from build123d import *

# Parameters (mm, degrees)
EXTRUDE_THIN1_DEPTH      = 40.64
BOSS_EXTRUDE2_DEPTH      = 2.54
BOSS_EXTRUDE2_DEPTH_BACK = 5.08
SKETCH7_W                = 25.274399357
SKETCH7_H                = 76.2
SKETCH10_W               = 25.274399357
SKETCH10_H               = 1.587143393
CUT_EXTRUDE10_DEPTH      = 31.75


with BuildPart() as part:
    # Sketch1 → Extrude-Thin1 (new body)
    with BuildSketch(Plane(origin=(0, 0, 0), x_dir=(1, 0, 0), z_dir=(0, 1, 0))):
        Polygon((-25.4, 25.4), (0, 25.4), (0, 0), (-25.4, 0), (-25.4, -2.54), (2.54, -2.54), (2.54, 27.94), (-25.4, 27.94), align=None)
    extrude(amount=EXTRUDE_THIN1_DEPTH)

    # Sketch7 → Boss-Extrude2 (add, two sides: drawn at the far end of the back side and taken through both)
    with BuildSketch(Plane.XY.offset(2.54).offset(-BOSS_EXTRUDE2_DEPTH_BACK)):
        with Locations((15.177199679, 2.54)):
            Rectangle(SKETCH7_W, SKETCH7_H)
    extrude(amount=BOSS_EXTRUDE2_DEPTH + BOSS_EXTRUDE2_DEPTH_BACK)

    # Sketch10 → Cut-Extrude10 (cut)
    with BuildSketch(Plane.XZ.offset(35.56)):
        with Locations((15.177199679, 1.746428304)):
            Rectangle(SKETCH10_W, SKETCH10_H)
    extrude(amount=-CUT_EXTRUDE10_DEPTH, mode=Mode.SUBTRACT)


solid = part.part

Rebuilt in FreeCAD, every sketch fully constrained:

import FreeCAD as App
import Part
import Sketcher

V = App.Vector
Q = App.Units.Quantity


def add_polygon(sketch, points):
    """Adds a closed chain of lines whose ends are joined by coincident constraints."""
    first, n = sketch.GeometryCount, len(points)
    for a, b in zip(points, points[1:] + points[:1]):
        sketch.addGeometry(Part.LineSegment(App.Vector(*a, 0), App.Vector(*b, 0)), False)
    for i in range(n):
        sketch.addConstraint(Sketcher.Constraint("Coincident", first + i, 2, first + (i + 1) % n, 1))

doc = App.newDocument("Part")
body = doc.addObject("PartDesign::Body", "Body")

sketch1 = body.newObject("Sketcher::SketchObject", "Sketch")
sketch1.AttachmentSupport = (doc.getObject("XZ_Plane"), [""])
sketch1.MapMode = "FlatFace"
add_polygon(sketch1, [(-25.4, -25.4), (0, -25.4), (0, 0), (-25.4, 0), (-25.4, 2.5), (2.5, 2.5), (2.5, -27.9), (-25.4, -27.9)])
sketch1.addConstraint([
    Sketcher.Constraint("Horizontal", 0),
    Sketcher.Constraint("Vertical", 1),
    Sketcher.Constraint("Horizontal", 2),
    Sketcher.Constraint("Vertical", 3),
    Sketcher.Constraint("Horizontal", 4),
    Sketcher.Constraint("Vertical", 5),
    Sketcher.Constraint("Horizontal", 6),
    Sketcher.Constraint("Vertical", 7),
    Sketcher.Constraint("Coincident", 1, 2, -1, 1),
    Sketcher.Constraint("Vertical", 3, 2, 6, 2),
    Sketcher.Constraint("Equal", 2, 1),
    Sketcher.Constraint("Equal", 3, 7),
    Sketcher.Constraint("DistanceX", 0, 1, 0, 2, Q("1 in")),
    Sketcher.Constraint("DistanceX", 4, 1, 4, 2, Q("1.1 in")),
    Sketcher.Constraint("DistanceY", 3, 1, 3, 2, Q("0.1 in")),
])
pad1 = body.newObject("PartDesign::Pad", "Pad")
pad1.Profile = sketch1
pad1.Length = Q("1.6 in")
pad1.Reversed = True

sketch2 = body.newObject("Sketcher::SketchObject", "Sketch001")
sketch2.AttachmentSupport = (doc.getObject("XY_Plane"), [""])
sketch2.MapMode = "FlatFace"
sketch2.AttachmentOffset = App.Placement(V(0, 0, 0.1 * 25.4), App.Rotation())
add_polygon(sketch2, [(3, 41), (3, -36), (28, -36), (28, 41)])
sketch2.addConstraint([
    Sketcher.Constraint("Vertical", 0),
    Sketcher.Constraint("Horizontal", 1),
    Sketcher.Constraint("Vertical", 2),
    Sketcher.Constraint("Horizontal", 3),
    Sketcher.Constraint("DistanceY", 0, 2, 0, 1, Q("3 in")),
    Sketcher.Constraint("DistanceX", -1, 1, 0, 2, Q("0.1 in")),
    Sketcher.Constraint("DistanceY", 0, 2, -1, 1, Q("1.4 in")),
    Sketcher.Constraint("DistanceX", 1, 1, 1, 2, Q("25.274399 mm")),
])
pad2 = body.newObject("PartDesign::Pad", "Pad001")
pad2.Profile = sketch2
pad2.Type = "TwoLengths"
pad2.Length = Q("0.1 in")
pad2.Length2 = Q("0.2 in")

sketch3 = body.newObject("Sketcher::SketchObject", "Sketch002")
sketch3.AttachmentSupport = (doc.getObject("XZ_Plane"), [""])
sketch3.MapMode = "FlatFace"
sketch3.AttachmentOffset = App.Placement(V(0, 0, 1.4 * 25.4), App.Rotation())
add_polygon(sketch3, [(2.5, 2.5), (2.5, 1), (27.8, 1), (27.8, 2.5)])
sketch3.addConstraint([
    Sketcher.Constraint("Vertical", 0),
    Sketcher.Constraint("Horizontal", 1),
    Sketcher.Constraint("Vertical", 2),
    Sketcher.Constraint("Horizontal", 3),
    Sketcher.Constraint("DistanceX", -1, 1, 0, 2, Q("0.1 in")),
    Sketcher.Constraint("DistanceY", -1, 1, 2, 2, Q("0.1 in")),
    Sketcher.Constraint("DistanceX", 1, 1, 1, 2, Q("25.274399 mm")),
    Sketcher.Constraint("DistanceY", 0, 2, 0, 1, Q("1.587143 mm")),
])
pocket1 = body.newObject("PartDesign::Pocket", "Pocket")
pocket1.Profile = sketch3
pocket1.Length = Q("1.25 in")

doc.recompute()
